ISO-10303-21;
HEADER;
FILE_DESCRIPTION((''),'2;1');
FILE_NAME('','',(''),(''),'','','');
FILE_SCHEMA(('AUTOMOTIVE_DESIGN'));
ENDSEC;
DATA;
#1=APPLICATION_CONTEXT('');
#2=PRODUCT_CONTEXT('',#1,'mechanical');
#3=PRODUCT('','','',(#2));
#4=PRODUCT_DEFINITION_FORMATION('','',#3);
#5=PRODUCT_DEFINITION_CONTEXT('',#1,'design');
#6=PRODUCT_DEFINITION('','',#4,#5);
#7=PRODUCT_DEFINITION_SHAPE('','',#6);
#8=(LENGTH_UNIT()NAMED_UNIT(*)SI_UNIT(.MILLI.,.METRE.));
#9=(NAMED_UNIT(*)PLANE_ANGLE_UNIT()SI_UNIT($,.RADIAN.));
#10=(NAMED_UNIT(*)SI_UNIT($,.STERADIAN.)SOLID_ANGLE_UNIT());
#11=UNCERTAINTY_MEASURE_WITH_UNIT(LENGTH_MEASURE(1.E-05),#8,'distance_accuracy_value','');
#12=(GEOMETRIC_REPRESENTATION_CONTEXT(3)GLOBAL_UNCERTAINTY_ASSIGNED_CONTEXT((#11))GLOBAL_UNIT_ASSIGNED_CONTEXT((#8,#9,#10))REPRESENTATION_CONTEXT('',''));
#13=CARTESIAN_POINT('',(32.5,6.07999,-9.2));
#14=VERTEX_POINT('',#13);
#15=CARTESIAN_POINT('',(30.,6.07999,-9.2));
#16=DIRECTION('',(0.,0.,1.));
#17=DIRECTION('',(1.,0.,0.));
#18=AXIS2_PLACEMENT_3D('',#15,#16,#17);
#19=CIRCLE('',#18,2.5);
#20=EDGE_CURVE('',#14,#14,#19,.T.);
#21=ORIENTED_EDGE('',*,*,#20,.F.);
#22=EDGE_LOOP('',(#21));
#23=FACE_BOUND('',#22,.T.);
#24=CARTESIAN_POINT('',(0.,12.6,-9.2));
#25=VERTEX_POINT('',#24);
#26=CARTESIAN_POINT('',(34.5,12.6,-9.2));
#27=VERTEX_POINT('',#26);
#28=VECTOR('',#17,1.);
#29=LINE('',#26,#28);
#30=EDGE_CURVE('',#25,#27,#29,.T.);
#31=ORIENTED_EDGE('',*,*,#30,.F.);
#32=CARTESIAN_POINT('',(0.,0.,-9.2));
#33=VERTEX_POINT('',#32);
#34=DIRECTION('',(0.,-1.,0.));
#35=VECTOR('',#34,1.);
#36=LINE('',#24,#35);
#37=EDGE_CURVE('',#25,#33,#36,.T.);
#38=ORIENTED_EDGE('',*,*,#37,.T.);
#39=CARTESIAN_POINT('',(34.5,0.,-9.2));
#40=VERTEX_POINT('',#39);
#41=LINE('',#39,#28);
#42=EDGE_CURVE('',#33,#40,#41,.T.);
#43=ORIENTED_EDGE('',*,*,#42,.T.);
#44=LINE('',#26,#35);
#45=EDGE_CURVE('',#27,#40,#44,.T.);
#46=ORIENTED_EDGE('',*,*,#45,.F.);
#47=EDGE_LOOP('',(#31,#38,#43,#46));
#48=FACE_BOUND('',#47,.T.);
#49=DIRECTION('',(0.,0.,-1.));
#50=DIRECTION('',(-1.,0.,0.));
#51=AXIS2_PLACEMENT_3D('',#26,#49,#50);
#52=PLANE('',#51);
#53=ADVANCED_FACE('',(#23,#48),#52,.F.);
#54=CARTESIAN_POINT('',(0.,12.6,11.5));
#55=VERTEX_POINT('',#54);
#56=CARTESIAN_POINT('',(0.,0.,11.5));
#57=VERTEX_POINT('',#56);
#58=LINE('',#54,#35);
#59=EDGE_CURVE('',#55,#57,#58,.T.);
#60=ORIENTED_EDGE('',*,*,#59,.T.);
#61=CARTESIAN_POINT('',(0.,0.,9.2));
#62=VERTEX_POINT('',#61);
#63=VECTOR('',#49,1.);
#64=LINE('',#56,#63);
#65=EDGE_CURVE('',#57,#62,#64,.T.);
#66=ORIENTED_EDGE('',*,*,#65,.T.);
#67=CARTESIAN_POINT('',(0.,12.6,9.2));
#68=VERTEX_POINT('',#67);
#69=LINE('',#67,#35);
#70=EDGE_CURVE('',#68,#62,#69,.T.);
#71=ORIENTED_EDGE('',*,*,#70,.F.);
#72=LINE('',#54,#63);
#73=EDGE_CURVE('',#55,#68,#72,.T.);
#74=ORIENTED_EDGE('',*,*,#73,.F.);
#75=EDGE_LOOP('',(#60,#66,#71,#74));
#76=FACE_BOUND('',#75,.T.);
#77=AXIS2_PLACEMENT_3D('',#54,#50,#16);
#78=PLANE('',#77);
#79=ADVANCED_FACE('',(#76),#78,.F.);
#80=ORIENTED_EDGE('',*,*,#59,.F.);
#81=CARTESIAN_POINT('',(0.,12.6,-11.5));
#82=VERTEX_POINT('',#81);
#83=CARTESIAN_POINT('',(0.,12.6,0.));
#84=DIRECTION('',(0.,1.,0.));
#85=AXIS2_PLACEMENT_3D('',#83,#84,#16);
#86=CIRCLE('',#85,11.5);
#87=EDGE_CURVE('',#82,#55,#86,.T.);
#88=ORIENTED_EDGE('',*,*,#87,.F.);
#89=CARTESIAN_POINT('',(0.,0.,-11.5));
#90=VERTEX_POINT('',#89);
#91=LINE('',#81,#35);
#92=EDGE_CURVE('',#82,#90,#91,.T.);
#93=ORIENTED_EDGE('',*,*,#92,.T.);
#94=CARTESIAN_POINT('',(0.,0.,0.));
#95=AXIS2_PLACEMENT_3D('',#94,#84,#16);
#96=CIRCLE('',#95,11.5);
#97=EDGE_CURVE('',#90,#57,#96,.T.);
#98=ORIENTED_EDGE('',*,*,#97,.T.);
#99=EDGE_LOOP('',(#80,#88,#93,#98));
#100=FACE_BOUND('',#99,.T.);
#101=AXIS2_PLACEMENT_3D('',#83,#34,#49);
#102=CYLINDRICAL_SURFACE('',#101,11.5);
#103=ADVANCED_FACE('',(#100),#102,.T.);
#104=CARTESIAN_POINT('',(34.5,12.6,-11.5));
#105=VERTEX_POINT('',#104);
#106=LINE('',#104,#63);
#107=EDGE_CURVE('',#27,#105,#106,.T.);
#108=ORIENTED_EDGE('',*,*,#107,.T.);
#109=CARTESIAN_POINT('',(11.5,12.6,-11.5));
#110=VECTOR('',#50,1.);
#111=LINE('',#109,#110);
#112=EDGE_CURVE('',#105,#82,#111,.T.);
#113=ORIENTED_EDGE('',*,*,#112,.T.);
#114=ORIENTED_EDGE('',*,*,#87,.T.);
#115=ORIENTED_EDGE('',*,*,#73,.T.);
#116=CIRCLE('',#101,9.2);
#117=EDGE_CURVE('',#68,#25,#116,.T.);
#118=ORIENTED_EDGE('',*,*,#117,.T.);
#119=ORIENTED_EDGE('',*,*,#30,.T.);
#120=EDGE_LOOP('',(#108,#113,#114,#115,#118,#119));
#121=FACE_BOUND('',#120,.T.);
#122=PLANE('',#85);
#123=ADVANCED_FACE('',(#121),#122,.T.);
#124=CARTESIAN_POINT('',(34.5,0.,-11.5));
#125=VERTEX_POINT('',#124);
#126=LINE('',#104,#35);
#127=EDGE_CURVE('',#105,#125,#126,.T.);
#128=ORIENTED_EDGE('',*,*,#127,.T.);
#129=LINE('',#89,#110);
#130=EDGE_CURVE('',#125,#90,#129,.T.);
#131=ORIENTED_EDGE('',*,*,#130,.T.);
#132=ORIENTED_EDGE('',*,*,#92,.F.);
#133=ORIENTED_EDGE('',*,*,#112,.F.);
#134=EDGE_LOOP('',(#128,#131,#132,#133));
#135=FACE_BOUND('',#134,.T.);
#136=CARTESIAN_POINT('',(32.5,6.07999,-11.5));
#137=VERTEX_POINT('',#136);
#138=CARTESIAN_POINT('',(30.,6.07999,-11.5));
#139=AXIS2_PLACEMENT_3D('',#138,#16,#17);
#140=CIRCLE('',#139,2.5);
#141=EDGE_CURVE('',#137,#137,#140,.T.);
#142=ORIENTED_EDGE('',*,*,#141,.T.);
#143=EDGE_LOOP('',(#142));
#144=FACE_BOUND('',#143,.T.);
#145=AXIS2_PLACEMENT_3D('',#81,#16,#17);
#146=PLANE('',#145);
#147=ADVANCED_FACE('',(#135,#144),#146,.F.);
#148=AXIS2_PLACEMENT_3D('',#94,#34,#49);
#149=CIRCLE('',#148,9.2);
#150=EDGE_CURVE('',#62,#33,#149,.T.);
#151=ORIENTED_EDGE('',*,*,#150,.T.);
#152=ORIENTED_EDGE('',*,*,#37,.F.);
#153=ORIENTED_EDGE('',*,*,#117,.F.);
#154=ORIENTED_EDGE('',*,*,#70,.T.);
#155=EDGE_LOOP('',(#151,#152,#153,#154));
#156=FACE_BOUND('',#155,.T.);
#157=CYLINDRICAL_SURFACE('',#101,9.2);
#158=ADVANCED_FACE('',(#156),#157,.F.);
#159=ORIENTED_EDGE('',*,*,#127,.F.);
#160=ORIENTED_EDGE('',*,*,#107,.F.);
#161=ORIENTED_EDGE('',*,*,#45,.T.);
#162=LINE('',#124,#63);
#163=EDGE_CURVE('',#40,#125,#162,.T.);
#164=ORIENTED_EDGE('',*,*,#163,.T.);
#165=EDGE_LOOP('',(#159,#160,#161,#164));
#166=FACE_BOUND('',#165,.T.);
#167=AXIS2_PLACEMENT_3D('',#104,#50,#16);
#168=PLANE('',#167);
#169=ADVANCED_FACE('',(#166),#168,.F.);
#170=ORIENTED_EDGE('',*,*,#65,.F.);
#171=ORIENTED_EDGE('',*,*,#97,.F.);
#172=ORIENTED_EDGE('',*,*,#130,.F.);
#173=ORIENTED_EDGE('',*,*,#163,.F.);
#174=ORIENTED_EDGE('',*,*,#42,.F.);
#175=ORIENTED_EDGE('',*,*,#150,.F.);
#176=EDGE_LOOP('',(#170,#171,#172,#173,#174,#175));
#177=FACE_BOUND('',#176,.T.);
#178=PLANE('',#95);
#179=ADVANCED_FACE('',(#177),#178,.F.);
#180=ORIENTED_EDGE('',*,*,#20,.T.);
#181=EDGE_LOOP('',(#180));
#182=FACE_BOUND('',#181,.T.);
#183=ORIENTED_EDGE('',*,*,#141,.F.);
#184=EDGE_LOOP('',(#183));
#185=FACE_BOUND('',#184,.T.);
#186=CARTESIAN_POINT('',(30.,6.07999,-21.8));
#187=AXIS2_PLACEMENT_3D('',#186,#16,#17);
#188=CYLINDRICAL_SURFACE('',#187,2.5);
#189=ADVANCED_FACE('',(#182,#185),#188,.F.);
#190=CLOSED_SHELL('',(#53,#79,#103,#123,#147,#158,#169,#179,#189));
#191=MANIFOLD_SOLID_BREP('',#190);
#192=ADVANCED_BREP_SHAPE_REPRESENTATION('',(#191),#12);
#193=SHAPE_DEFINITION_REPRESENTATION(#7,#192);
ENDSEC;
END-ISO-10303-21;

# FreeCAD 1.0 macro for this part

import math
import FreeCAD as App
import Part
import Sketcher
Q = App.Units.Quantity

doc = App.newDocument("Part")
body = doc.addObject("PartDesign::Body", "Body")

# Sketch on XZ plane
sketch1 = body.newObject("Sketcher::SketchObject", "Sketch")
sketch1.AttachmentSupport = (doc.getObject("XZ_Plane"), [""])
sketch1.MapMode = "FlatFace"
sketch1.addGeometry([
    Part.LineSegment(App.Vector(34.5, -11.5, 0), App.Vector(0, -11.5, 0)),  # 0
    Part.ArcOfCircle(Part.Circle(App.Vector(0, 0, 0), App.Vector(0, 0, 1), 11.5), math.radians(90), math.radians(270)),  # 1
    Part.LineSegment(App.Vector(0, 11.5, 0), App.Vector(0, 9.2, 0)),  # 2
    Part.ArcOfCircle(Part.Circle(App.Vector(0, 0, 0), App.Vector(0, 0, 1), 9.2), math.radians(90), math.radians(270)),  # 3
    Part.LineSegment(App.Vector(0, -9.2, 0), App.Vector(34.5, -9.2, 0)),  # 4
    Part.LineSegment(App.Vector(34.5, -9.2, 0), App.Vector(34.5, -11.5, 0)),  # 5
], False)
sketch1.addConstraint([
    Sketcher.Constraint("Tangent", 0, 2, 1, 2),
    Sketcher.Constraint("Coincident", 1, 1, 2, 1),
    Sketcher.Constraint("Coincident", 2, 2, 3, 1),
    Sketcher.Constraint("Tangent", 3, 2, 4, 1),
    Sketcher.Constraint("Coincident", 4, 2, 5, 1),
    Sketcher.Constraint("Coincident", 5, 2, 0, 1),
    Sketcher.Constraint("Horizontal", 0),
    Sketcher.Constraint("Vertical", 2),
    Sketcher.Constraint("Horizontal", 4),
    Sketcher.Constraint("Vertical", 5),
    Sketcher.Constraint("Coincident", 1, 3, -1, 1),
    Sketcher.Constraint("Coincident", 3, 3, -1, 1),
    Sketcher.Constraint("PointOnObject", 1, 1, -2),
    Sketcher.Constraint("Radius", 1, Q("11.5 mm")),
    Sketcher.Constraint("Radius", 3, Q("9.2 mm")),
    Sketcher.Constraint("DistanceX", 0, 2, 0, 1, Q("34.5 mm")),
])
pad1 = body.newObject("PartDesign::Pad", "Pad")
pad1.Profile = sketch1
pad1.Length = 12.6
pad1.Reversed = True

# Sketch on XY plane
sketch2 = body.newObject("Sketcher::SketchObject", "Sketch001")
sketch2.AttachmentSupport = (doc.getObject("XY_Plane"), [""])
sketch2.MapMode = "FlatFace"
sketch2.AttachmentOffset = App.Placement(App.Vector(0, 0, -9.2), App.Rotation())
sketch2.addGeometry(Part.Circle(App.Vector(30, 6.07999, 0), App.Vector(0, 0, 1), 2.5), False)
sketch2.addConstraint([
    Sketcher.Constraint("Diameter", 0, Q("5 mm")),
    Sketcher.Constraint("DistanceX", -1, 1, 0, 3, Q("30 mm")),
    Sketcher.Constraint("DistanceY", -1, 1, 0, 3, Q("6.07999 mm")),
])
pocket1 = body.newObject("PartDesign::Pocket", "Pocket")
pocket1.Profile = sketch2
pocket1.Length = 12.6

doc.recompute()
